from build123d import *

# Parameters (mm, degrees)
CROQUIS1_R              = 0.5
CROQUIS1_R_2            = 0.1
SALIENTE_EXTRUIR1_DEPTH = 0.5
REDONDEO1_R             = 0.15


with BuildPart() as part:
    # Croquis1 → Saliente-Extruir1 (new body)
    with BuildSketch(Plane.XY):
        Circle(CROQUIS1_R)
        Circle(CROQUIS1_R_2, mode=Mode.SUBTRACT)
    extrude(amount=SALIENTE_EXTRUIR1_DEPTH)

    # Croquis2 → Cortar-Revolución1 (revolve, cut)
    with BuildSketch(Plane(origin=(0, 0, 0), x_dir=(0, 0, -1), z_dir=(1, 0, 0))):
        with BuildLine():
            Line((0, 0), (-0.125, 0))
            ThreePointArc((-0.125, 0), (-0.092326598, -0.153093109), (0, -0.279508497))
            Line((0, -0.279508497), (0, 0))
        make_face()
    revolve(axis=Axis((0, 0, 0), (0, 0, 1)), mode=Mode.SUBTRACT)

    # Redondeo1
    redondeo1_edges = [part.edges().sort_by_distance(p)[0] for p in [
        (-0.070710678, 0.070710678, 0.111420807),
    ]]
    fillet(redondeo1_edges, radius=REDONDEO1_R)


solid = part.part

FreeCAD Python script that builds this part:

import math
import FreeCAD as App
import Part
import Sketcher

V = App.Vector
Q = App.Units.Quantity


def edges_at(feature, points):
    """Names of the edges that pass closest to the given points."""
    edges = feature.Shape.Edges
    near = lambda p: min(range(len(edges)), key=lambda i: edges[i].distToShape(Part.Vertex(*p))[0])
    return sorted({f"Edge{near(p) + 1}" for p in points})

doc = App.newDocument("Part")
body = doc.addObject("PartDesign::Body", "Body")

# Sketch on XY plane
sketch1 = body.newObject("Sketcher::SketchObject", "Sketch")
sketch1.AttachmentSupport = (doc.getObject("XY_Plane"), [""])
sketch1.MapMode = "FlatFace"
sketch1.addGeometry([
    Part.Circle(V(0, 0, 0), V(0, 0, 1), 0.5),
    Part.Circle(V(0, 0, 0), V(0, 0, 1), 0.1),
], False)
sketch1.addConstraint([
    Sketcher.Constraint("Coincident", 0, 3, -1, 1),
    Sketcher.Constraint("Coincident", 1, 3, -1, 1),
    Sketcher.Constraint("Diameter", 0, Q("1 mm")),
    Sketcher.Constraint("Diameter", 1, Q("0.2 mm")),
])
pad1 = body.newObject("PartDesign::Pad", "Pad")
pad1.Profile = sketch1
pad1.Length = 0.5

# Sketch on YZ plane
sketch2 = body.newObject("Sketcher::SketchObject", "Sketch001")
sketch2.AttachmentSupport = (doc.getObject("YZ_Plane"), [""])
sketch2.MapMode = "FlatFace"
sketch2.addGeometry([
    Part.LineSegment(V(0, 0, 0), V(0, 0.12, 0)),
    Part.ArcOfCircle(Part.Circle(V(0, -0.25, 0), V(0, 0, 1), 0.38), math.radians(90), math.radians(138)),
    Part.LineSegment(V(-0.28, 0, 0), V(0, 0, 0)),
], False)
sketch2.addConstraint([
    Sketcher.Constraint("Coincident", 0, 2, 1, 1),
    Sketcher.Constraint("Coincident", 1, 2, 2, 1),
    Sketcher.Constraint("Coincident", 2, 2, 0, 1),
    Sketcher.Constraint("Vertical", 0),
    Sketcher.Constraint("Horizontal", 2),
    Sketcher.Constraint("Coincident", 2, 2, -1, 1),
    Sketcher.Constraint("PointOnObject", 1, 3, -2),
    Sketcher.Constraint("Radius", 1, Q("0.375 mm")),
    Sketcher.Constraint("DistanceY", 0, 1, 0, 2, Q("0.125 mm")),
])
groove = body.newObject("PartDesign::Groove", "Groove")
groove.Profile = sketch2
groove.ReferenceAxis = (sketch2, ["V_Axis"])
groove.Angle = 360
doc.recompute()

fillet = body.newObject("PartDesign::Fillet", "Fillet")
fillet.Base = (groove, edges_at(groove, [(-0.071, 0.071, 0.111)]))
fillet.Radius = 0.15

doc.recompute()
